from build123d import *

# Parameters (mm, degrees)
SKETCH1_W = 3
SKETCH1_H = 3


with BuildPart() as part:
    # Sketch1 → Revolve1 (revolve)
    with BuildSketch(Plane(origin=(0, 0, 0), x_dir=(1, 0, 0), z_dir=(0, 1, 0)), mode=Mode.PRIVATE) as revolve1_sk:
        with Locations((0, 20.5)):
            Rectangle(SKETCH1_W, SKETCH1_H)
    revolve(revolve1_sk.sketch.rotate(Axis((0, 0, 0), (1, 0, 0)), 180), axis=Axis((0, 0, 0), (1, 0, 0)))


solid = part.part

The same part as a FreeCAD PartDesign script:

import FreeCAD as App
import Part
import Sketcher

V = App.Vector

doc = App.newDocument("Part")
params = doc.addObject("Spreadsheet::Sheet", "Params")
for row, (alias, value) in enumerate([
    ("sketch1_width", "3 mm"),
    ("revolution_angle", "360 deg"),
], start=1):
    params.set(f"A{row}", alias)
    params.set(f"B{row}", "=" + value)
    params.setAlias(f"B{row}", alias)

body = doc.addObject("PartDesign::Body", "Body")

sketch1 = doc.addObject("Sketcher::SketchObject", "Sketch")
body.addObject(sketch1)
sketch1.AttachmentSupport = (doc.XZ_Plane, [""])
sketch1.MapMode = "FlatFace"
sketch1.addGeometry(Part.LineSegment(V(-1.5, -22, 0), V(-1.5, -19, 0)), False)
sketch1.addGeometry(Part.LineSegment(V(-1.5, -19, 0), V(1.5, -19, 0)), False)
sketch1.addGeometry(Part.LineSegment(V(1.5, -19, 0), V(1.5, -22, 0)), False)
sketch1.addGeometry(Part.LineSegment(V(1.5, -22, 0), V(-1.5, -22, 0)), False)
sketch1.addConstraint(Sketcher.Constraint("Coincident", 0, 2, 1, 1))
sketch1.addConstraint(Sketcher.Constraint("Coincident", 1, 2, 2, 1))
sketch1.addConstraint(Sketcher.Constraint("Coincident", 2, 2, 3, 1))
sketch1.addConstraint(Sketcher.Constraint("Coincident", 3, 2, 0, 1))
sketch1.addConstraint(Sketcher.Constraint("Vertical", 0))
sketch1.addConstraint(Sketcher.Constraint("Horizontal", 1))
sketch1.addConstraint(Sketcher.Constraint("Vertical", 2))
sketch1.addConstraint(Sketcher.Constraint("Horizontal", 3))
sketch1.addConstraint(Sketcher.Constraint("Equal", 3, 0))
sketch1.addConstraint(Sketcher.Constraint("DistanceX", 1, 1, 1, 2, 3.0))
sketch1.addConstraint(Sketcher.Constraint("DistanceY", 0, 2, -1, 1, 19.0))
sketch1.addConstraint(Sketcher.Constraint("DistanceX", 0, 2, -1, 1, 1.5))
sketch1.setExpression("Constraints[9]", "Params.sketch1_width")
revolution = doc.addObject("PartDesign::Revolution", "Revolution")
body.addObject(revolution)
revolution.Profile = sketch1
revolution.ReferenceAxis = (sketch1, ["H_Axis"])
revolution.setExpression("Angle", "Params.revolution_angle")

doc.recompute()
